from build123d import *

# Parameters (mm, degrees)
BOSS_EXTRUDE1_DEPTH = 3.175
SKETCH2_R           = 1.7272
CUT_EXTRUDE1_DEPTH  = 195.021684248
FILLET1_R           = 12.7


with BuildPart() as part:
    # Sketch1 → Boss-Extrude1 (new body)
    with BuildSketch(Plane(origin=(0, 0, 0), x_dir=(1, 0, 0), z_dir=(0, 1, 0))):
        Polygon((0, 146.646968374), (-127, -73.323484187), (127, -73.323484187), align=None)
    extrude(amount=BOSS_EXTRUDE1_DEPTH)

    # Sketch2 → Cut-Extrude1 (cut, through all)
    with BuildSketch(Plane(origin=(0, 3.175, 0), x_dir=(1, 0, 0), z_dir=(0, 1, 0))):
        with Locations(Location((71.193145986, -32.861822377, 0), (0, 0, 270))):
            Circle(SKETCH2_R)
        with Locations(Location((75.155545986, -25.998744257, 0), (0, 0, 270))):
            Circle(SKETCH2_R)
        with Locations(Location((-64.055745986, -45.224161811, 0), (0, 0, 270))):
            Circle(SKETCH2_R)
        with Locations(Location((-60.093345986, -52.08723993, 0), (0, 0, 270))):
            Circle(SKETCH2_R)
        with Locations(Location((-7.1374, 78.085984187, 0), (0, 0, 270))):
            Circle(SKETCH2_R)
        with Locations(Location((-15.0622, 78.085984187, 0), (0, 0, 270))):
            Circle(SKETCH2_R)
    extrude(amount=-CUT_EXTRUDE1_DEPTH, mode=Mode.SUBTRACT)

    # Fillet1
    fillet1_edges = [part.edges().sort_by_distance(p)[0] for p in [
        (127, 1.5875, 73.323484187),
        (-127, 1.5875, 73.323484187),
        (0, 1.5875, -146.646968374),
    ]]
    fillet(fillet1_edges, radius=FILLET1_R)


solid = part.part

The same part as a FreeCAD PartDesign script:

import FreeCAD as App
import Part
import Sketcher

V = App.Vector
Q = App.Units.Quantity


def edges_at(feature, points):
    """Names of the edges that pass closest to the given points."""
    edges = feature.Shape.Edges
    near = lambda p: min(range(len(edges)), key=lambda i: edges[i].distToShape(Part.Vertex(*p))[0])
    return sorted({f"Edge{near(p) + 1}" for p in points})


def add_polygon(sketch, points):
    """Adds a closed chain of lines whose ends are joined by coincident constraints."""
    first, n = sketch.GeometryCount, len(points)
    for a, b in zip(points, points[1:] + points[:1]):
        sketch.addGeometry(Part.LineSegment(App.Vector(*a, 0), App.Vector(*b, 0)), False)
    for i in range(n):
        sketch.addConstraint(Sketcher.Constraint("Coincident", first + i, 2, first + (i + 1) % n, 1))

doc = App.newDocument("Part")
body = doc.addObject("PartDesign::Body", "Body")

# Sketch on XZ plane
sketch1 = body.newObject("Sketcher::SketchObject", "Sketch")
sketch1.AttachmentSupport = (doc.getObject("XZ_Plane"), [""])
sketch1.MapMode = "FlatFace"
add_polygon(sketch1, [(0, -147), (-127, 73), (127, 73)])  # lines 0-2
sketch1.addConstraint(Sketcher.Constraint("Horizontal", 1))
sketch1.addConstraint(Sketcher.Constraint("PointOnObject", 2, 2, -2))
sketch1.addConstraint(Sketcher.Constraint("Equal", 0, 2))
sketch1.addConstraint(Sketcher.Constraint("DistanceX", 1, 1, 1, 2, Q("10 in")))
sketch1.addConstraint(Sketcher.Constraint("Distance", 0, Q("10 in")))
sketch1.addConstraint(Sketcher.Constraint("DistanceY", 2, 2, -1, 1, Q("146.646968 mm")))
pad1 = body.newObject("PartDesign::Pad", "Pad")
pad1.Profile = sketch1
pad1.Length = Q("0.125 in")
pad1.Reversed = True

# Sketch on XZ plane
sketch2 = body.newObject("Sketcher::SketchObject", "Sketch001")
sketch2.AttachmentSupport = (doc.getObject("XZ_Plane"), [""])
sketch2.MapMode = "FlatFace"
sketch2.AttachmentOffset = App.Placement(V(0, 0, -0.125 * 25.4), App.Rotation())
sketch2.addGeometry(Part.Circle(V(71.2, 32.9, 0), V(0, 0, 1), 1.7), False)
sketch2.addGeometry(Part.Circle(V(75.2, 26, 0), V(0, 0, 1), 1.7), False)
sketch2.addGeometry(Part.Circle(V(-64.1, 45.2, 0), V(0, 0, 1), 1.7), False)
sketch2.addGeometry(Part.Circle(V(-60.1, 52.1, 0), V(0, 0, 1), 1.7), False)
sketch2.addGeometry(Part.Circle(V(-7.1, -78.1, 0), V(0, 0, 1), 1.7), False)
sketch2.addGeometry(Part.Circle(V(-15.1, -78.1, 0), V(0, 0, 1), 1.7), False)
sketch2.addConstraint(Sketcher.Constraint("Equal", 0, 1))
sketch2.addConstraint(Sketcher.Constraint("Equal", 1, 2))
sketch2.addConstraint(Sketcher.Constraint("Equal", 2, 3))
sketch2.addConstraint(Sketcher.Constraint("Equal", 3, 4))
sketch2.addConstraint(Sketcher.Constraint("Equal", 4, 5))
sketch2.addConstraint(Sketcher.Constraint("Horizontal", 4, 3, 5, 3))
sketch2.addConstraint(Sketcher.Constraint("Diameter", 0, Q("0.136 in")))
sketch2.addConstraint(Sketcher.Constraint("DistanceX", 4, 3, -1, 1, Q("0.281 in")))
sketch2.addConstraint(Sketcher.Constraint("DistanceX", 5, 3, -1, 1, Q("0.593 in")))
sketch2.addConstraint(Sketcher.Constraint("DistanceX", 0, 3, 1, 3, Q("0.156 in")))
sketch2.addConstraint(Sketcher.Constraint("DistanceX", 2, 3, 3, 3, Q("0.156 in")))
sketch2.addConstraint(Sketcher.Constraint("DistanceY", 1, 3, 0, 3, Q("0.2701999 in")))
sketch2.addConstraint(Sketcher.Constraint("DistanceY", 2, 3, 3, 3, Q("0.2701999 in")))
sketch2.addConstraint(Sketcher.Constraint("DistanceY", -1, 1, 2, 3, Q("45.224162 mm")))
sketch2.addConstraint(Sketcher.Constraint("DistanceX", 2, 3, 0, 3, Q("135.248892 mm")))
sketch2.addConstraint(Sketcher.Constraint("DistanceY", 0, 3, 2, 3, Q("12.362339 mm")))
sketch2.addConstraint(Sketcher.Constraint("DistanceY", 4, 3, 1, 3, Q("104.084728 mm")))
sketch2.addConstraint(Sketcher.Constraint("DistanceX", -1, 1, 0, 3, Q("71.193146 mm")))
pocket1 = body.newObject("PartDesign::Pocket", "Pocket")
pocket1.Profile = sketch2
pocket1.Type = "ThroughAll"
pocket1.Reversed = True
doc.recompute()

fillet = body.newObject("PartDesign::Fillet", "Fillet")
fillet.Base = (pocket1, edges_at(pocket1, [(127, 1.587, 73.323), (-127, 1.587, 73.323), (0, 1.587, -146.647)]))
fillet.Radius = Q("0.5 in")

doc.recompute()
